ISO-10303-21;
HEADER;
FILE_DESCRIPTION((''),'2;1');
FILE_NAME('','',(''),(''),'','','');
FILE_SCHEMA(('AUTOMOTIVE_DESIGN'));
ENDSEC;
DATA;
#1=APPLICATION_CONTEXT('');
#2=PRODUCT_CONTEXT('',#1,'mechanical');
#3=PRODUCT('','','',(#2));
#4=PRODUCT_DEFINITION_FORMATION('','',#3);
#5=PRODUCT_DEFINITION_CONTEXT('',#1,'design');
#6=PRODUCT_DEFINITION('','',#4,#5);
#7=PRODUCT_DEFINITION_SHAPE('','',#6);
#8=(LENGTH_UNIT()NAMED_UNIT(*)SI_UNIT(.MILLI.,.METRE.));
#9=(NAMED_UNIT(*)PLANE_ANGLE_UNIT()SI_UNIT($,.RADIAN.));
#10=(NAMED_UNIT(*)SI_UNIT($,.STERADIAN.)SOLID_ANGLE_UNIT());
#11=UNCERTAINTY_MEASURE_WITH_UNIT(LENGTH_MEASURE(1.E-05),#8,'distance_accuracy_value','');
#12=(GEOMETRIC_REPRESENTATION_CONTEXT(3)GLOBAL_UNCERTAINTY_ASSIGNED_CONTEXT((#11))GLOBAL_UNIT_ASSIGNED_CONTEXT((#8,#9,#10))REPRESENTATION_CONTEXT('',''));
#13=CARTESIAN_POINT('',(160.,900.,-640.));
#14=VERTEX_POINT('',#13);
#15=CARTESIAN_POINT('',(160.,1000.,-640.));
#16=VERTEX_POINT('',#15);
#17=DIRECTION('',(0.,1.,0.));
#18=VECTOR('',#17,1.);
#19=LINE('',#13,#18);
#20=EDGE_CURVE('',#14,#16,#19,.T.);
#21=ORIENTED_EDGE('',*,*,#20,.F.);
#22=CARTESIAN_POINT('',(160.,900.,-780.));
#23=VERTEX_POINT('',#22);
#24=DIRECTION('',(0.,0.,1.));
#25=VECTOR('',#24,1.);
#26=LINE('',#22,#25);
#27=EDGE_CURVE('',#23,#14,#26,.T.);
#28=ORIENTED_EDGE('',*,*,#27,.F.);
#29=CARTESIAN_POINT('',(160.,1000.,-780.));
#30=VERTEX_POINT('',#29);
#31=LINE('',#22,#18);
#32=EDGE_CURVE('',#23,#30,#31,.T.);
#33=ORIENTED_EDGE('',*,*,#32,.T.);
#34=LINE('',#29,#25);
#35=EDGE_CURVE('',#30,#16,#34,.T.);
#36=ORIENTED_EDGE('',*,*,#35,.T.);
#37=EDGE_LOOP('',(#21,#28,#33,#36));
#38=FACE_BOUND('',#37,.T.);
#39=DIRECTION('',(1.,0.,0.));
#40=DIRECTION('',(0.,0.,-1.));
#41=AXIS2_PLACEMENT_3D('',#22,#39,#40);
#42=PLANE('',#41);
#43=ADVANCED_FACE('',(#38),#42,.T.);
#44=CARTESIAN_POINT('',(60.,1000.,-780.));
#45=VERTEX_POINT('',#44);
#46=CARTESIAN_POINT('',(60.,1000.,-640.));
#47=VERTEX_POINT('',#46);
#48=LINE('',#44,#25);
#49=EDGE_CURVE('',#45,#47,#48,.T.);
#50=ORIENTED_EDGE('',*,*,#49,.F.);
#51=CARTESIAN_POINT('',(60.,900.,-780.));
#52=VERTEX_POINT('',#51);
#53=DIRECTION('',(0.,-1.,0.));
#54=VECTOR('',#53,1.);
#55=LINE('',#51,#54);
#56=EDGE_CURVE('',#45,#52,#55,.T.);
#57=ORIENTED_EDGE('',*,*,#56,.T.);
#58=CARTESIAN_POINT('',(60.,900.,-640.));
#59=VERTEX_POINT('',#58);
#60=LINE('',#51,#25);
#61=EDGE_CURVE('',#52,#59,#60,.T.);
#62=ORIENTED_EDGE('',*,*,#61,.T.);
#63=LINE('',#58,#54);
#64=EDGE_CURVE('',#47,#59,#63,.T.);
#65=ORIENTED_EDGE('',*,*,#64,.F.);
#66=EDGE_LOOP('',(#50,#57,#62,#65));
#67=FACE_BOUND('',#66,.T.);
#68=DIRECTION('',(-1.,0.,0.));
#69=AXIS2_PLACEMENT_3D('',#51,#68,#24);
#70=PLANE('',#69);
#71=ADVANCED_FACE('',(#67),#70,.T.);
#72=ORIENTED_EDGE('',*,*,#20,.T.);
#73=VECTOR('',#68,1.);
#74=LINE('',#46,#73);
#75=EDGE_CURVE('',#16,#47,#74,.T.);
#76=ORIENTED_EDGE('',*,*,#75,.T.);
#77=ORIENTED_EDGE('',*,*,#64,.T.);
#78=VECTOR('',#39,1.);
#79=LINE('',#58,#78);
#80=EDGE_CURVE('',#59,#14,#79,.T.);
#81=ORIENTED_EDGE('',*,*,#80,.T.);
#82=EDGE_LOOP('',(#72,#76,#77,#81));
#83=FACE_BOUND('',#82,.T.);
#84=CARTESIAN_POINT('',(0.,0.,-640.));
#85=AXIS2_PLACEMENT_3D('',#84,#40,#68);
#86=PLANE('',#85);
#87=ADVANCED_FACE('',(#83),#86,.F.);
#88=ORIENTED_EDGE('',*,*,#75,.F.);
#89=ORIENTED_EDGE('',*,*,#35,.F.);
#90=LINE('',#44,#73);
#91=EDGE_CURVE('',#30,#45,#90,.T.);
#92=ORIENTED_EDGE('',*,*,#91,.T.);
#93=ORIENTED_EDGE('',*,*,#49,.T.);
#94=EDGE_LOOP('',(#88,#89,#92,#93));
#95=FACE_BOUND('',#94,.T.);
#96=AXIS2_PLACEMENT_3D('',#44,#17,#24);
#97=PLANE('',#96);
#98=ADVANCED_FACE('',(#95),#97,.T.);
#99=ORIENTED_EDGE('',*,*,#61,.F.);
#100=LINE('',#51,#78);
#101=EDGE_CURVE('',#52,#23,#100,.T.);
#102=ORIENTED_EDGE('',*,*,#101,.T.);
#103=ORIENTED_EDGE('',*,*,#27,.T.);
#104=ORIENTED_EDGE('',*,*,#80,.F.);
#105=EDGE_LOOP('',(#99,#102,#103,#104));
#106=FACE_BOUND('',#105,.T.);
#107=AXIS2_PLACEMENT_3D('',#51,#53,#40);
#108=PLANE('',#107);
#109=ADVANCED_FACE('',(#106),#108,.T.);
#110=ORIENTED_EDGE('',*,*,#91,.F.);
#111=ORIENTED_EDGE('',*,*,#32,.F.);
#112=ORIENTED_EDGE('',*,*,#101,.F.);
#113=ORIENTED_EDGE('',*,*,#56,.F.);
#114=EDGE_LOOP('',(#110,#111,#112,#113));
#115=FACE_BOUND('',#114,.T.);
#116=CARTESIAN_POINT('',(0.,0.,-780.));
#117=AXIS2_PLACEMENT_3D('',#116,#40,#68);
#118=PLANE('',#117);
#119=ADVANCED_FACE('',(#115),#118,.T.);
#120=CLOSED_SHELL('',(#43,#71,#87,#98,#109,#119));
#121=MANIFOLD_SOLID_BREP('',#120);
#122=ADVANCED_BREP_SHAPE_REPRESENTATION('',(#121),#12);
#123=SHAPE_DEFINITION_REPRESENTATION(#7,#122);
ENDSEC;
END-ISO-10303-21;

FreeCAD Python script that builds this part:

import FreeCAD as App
import Part
import Sketcher

V = App.Vector
Q = App.Units.Quantity

doc = App.newDocument("Part")
params = doc.addObject("Spreadsheet::Sheet", "Params")
for row, (alias, value) in enumerate([
    ("sketch1_width", "100 mm"),
    ("pad1_length", "140 mm"),
], start=1):
    params.set(f"A{row}", alias)
    params.set(f"B{row}", "=" + value)
    params.setAlias(f"B{row}", alias)

body = doc.addObject("PartDesign::Body", "Body")

# Sketch on XY plane
sketch1 = body.newObject("Sketcher::SketchObject", "Sketch")
sketch1.AttachmentSupport = (doc.getObject("XY_Plane"), [""])
sketch1.MapMode = "FlatFace"
sketch1.AttachmentOffset = App.Placement(V(0, 0, -640), App.Rotation())
sketch1.addGeometry(Part.LineSegment(V(60, 1000, 0), V(60, 900, 0)), False)
sketch1.addGeometry(Part.LineSegment(V(60, 900, 0), V(160, 900, 0)), False)
sketch1.addGeometry(Part.LineSegment(V(160, 900, 0), V(160, 1000, 0)), False)
sketch1.addGeometry(Part.LineSegment(V(160, 1000, 0), V(60, 1000, 0)), False)
sketch1.addConstraint(Sketcher.Constraint("Coincident", 0, 2, 1, 1))
sketch1.addConstraint(Sketcher.Constraint("Coincident", 1, 2, 2, 1))
sketch1.addConstraint(Sketcher.Constraint("Coincident", 2, 2, 3, 1))
sketch1.addConstraint(Sketcher.Constraint("Coincident", 3, 2, 0, 1))
sketch1.addConstraint(Sketcher.Constraint("Vertical", 0))
sketch1.addConstraint(Sketcher.Constraint("Horizontal", 1))
sketch1.addConstraint(Sketcher.Constraint("Vertical", 2))
sketch1.addConstraint(Sketcher.Constraint("Horizontal", 3))
sketch1.addConstraint(Sketcher.Constraint("Equal", 3, 0))
sketch1.addConstraint(Sketcher.Constraint("DistanceX", 1, 1, 1, 2, Q("100 mm")))
sketch1.addConstraint(Sketcher.Constraint("DistanceX", -1, 1, 0, 2, Q("60 mm")))
sketch1.addConstraint(Sketcher.Constraint("DistanceY", -1, 1, 0, 2, Q("900 mm")))
sketch1.setExpression("Constraints[9]", "Params.sketch1_width")
pad1 = body.newObject("PartDesign::Pad", "Pad")
pad1.Profile = sketch1
pad1.setExpression("Length", "Params.pad1_length")
pad1.Reversed = True

doc.recompute()
